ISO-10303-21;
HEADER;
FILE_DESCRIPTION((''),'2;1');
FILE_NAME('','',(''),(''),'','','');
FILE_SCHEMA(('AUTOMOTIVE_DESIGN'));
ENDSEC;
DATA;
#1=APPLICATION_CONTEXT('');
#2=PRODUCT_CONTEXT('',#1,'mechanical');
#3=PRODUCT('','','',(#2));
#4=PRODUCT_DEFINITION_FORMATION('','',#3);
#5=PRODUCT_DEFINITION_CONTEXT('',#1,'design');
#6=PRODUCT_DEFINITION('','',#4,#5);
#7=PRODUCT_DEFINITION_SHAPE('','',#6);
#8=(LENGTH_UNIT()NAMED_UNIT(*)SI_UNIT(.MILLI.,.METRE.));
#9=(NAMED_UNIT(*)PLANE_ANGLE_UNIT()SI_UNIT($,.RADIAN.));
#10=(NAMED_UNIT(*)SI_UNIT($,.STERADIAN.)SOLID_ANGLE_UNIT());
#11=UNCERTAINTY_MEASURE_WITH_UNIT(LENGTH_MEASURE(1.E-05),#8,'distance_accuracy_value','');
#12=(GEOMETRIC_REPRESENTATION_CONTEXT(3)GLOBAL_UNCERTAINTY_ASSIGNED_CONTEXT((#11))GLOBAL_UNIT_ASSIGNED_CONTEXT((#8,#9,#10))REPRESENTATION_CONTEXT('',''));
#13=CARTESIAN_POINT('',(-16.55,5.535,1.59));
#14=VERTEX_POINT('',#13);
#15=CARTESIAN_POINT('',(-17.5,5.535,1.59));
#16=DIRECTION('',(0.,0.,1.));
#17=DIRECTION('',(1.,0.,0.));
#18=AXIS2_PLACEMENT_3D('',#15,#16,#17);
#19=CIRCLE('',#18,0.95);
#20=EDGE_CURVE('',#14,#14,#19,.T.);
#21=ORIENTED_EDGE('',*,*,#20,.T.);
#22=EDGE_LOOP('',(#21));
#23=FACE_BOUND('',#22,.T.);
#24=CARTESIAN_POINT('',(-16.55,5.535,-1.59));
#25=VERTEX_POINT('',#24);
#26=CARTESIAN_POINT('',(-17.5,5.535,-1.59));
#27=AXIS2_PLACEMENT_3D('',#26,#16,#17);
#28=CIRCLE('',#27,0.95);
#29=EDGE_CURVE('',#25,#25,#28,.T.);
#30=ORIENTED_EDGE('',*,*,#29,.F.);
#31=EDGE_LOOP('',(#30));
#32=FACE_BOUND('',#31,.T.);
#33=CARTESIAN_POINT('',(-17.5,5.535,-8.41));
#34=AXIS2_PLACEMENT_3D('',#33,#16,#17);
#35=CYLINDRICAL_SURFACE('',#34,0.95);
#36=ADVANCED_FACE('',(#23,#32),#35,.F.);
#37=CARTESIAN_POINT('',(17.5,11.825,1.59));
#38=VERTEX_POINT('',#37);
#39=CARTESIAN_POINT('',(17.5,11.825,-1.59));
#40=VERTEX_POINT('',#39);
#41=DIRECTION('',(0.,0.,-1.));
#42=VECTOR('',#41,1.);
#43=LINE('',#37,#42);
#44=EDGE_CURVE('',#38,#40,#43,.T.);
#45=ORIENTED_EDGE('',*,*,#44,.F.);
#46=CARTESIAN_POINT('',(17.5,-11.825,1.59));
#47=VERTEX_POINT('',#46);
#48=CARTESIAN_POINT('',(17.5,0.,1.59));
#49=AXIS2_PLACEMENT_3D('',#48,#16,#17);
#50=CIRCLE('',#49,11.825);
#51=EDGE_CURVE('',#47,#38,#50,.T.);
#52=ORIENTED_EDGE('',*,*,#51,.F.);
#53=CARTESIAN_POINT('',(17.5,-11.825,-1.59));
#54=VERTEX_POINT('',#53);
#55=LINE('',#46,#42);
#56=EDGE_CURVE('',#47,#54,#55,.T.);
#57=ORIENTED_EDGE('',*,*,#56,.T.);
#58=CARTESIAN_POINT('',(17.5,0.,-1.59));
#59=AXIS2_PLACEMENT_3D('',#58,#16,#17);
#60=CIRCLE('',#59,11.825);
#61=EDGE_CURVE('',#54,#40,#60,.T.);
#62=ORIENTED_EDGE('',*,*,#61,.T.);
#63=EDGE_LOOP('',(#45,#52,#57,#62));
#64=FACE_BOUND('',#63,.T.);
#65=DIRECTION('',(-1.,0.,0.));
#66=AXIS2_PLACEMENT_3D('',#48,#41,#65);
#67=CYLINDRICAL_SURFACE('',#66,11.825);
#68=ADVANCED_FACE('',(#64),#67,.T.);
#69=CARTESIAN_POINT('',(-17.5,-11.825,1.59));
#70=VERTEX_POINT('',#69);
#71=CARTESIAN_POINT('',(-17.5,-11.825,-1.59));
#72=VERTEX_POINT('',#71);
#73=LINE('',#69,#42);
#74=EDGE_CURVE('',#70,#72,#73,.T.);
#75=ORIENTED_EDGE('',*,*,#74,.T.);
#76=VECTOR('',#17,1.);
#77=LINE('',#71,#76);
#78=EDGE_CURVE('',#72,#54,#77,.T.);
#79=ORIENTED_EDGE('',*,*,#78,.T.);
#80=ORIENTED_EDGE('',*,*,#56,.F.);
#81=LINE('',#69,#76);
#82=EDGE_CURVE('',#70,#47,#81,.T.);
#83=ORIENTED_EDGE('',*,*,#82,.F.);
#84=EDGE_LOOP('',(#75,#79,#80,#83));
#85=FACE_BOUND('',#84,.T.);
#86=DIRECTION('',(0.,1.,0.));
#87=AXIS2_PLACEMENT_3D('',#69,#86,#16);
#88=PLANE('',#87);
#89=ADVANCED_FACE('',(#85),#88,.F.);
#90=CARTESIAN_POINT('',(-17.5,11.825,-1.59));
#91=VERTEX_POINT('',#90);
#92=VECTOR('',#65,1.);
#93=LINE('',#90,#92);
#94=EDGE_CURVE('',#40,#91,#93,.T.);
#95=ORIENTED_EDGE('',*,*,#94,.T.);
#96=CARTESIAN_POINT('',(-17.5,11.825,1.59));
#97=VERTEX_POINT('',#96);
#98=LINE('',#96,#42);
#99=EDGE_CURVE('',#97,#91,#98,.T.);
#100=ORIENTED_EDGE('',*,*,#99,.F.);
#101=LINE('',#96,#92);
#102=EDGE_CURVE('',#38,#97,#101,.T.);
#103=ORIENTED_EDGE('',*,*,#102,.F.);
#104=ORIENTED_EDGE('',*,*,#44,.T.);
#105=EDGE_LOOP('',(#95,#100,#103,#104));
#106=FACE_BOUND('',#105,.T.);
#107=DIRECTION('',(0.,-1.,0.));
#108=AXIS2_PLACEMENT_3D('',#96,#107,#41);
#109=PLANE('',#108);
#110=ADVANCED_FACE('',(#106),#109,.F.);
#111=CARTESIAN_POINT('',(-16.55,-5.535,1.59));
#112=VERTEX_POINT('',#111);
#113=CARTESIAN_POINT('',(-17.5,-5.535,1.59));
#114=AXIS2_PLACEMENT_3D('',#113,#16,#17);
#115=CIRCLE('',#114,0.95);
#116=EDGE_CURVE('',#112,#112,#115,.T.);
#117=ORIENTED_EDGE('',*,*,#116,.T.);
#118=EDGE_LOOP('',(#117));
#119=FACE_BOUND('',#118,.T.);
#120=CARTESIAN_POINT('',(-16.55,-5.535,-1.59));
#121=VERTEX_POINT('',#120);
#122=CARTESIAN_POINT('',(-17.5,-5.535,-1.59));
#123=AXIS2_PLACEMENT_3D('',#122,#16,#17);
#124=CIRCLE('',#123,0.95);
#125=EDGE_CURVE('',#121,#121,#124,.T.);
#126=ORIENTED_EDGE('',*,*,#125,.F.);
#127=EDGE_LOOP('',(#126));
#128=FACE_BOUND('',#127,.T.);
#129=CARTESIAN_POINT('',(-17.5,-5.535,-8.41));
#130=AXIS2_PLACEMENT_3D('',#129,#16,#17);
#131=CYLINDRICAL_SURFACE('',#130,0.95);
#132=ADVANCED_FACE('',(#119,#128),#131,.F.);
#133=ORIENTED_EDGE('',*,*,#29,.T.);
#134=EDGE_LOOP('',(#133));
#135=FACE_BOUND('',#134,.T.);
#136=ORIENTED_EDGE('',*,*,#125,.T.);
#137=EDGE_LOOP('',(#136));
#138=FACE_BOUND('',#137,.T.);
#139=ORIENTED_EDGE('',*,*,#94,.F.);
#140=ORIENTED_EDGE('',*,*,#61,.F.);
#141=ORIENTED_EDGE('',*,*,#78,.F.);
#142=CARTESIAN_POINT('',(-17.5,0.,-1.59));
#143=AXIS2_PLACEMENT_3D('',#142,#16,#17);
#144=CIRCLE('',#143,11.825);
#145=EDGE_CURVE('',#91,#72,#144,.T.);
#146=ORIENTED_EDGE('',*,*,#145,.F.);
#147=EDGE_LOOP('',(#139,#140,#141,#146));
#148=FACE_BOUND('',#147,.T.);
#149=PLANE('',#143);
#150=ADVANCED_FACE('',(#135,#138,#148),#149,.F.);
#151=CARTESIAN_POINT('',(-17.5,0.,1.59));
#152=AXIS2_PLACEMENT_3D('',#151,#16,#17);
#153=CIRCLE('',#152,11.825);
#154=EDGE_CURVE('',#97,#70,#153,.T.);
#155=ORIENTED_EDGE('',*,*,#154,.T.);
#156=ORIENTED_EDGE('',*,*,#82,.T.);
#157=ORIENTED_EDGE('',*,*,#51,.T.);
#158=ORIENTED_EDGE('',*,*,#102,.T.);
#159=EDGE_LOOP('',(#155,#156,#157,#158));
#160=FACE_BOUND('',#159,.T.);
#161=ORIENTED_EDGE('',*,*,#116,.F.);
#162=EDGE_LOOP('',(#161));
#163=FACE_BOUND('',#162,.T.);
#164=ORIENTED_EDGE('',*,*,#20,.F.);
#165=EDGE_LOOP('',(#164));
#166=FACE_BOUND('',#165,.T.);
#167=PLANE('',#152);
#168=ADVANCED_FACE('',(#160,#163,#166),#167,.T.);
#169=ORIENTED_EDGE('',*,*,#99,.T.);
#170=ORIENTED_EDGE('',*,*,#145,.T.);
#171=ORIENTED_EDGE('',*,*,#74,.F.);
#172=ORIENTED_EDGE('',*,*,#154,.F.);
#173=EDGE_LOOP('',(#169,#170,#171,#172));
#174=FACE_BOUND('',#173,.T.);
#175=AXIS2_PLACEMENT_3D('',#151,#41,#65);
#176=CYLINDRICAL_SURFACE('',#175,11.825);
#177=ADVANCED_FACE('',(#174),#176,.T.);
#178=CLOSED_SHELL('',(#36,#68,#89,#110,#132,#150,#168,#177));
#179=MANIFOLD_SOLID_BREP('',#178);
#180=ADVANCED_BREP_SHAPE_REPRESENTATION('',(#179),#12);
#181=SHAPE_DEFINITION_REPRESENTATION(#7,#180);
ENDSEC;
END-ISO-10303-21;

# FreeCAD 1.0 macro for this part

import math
import FreeCAD as App
import Part
import Sketcher

doc = App.newDocument("Part")
body = doc.addObject("PartDesign::Body", "Body")

# Sketch on XY plane
sketch1 = body.newObject("Sketcher::SketchObject", "Sketch")
sketch1.AttachmentSupport = (doc.getObject("XY_Plane"), [""])
sketch1.MapMode = "FlatFace"
sketch1.addGeometry([
    Part.LineSegment(App.Vector(18, 12, 0), App.Vector(-18, 12, 0)),
    Part.ArcOfCircle(Part.Circle(App.Vector(-18, 0, 0), App.Vector(0, 0, 1), 12), math.radians(90), math.radians(270)),
    Part.LineSegment(App.Vector(-18, -12, 0), App.Vector(18, -12, 0)),
    Part.ArcOfCircle(Part.Circle(App.Vector(18, 0, 0), App.Vector(0, 0, 1), 12), math.radians(-90), math.radians(90)),
], False)
sketch1.addConstraint([
    Sketcher.Constraint("Tangent", 0, 2, 1, 1),
    Sketcher.Constraint("Tangent", 1, 2, 2, 1),
    Sketcher.Constraint("Tangent", 2, 2, 3, 1),
    Sketcher.Constraint("Tangent", 3, 2, 0, 1),
    Sketcher.Constraint("Horizontal", 0),
    Sketcher.Constraint("Horizontal", 2),
    Sketcher.Constraint("Symmetric", 1, 3, 3, 3, -1, 1),
    Sketcher.Constraint("DistanceX", 0, 2, 0, 1, 35.0),
    Sketcher.Constraint("Radius", 1, 11.825),
])
pad1 = body.newObject("PartDesign::Pad", "Pad")
pad1.Profile = sketch1
pad1.Length = 3.18
pad1.Midplane = True

# Sketch on XY plane
sketch2 = body.newObject("Sketcher::SketchObject", "Sketch001")
sketch2.AttachmentSupport = (doc.getObject("XY_Plane"), [""])
sketch2.MapMode = "FlatFace"
sketch2.AttachmentOffset = App.Placement(App.Vector(0, 0, 1.59), App.Rotation())
sketch2.addGeometry([
    Part.Circle(App.Vector(-17.5, 5.5, 0), App.Vector(0, 0, 1), 0.9),
    Part.Circle(App.Vector(-17.5, -5.5, 0), App.Vector(0, 0, 1), 0.9),
], False)
sketch2.addConstraint([
    Sketcher.Constraint("Equal", 0, 1),
    Sketcher.Constraint("Symmetric", 0, 3, 1, 3, -1),
    Sketcher.Constraint("Diameter", 0, 1.9),
    Sketcher.Constraint("DistanceX", 0, 3, -1, 1, 17.5),
    Sketcher.Constraint("DistanceY", 1, 3, 0, 3, 11.07),
])
pocket1 = body.newObject("PartDesign::Pocket", "Pocket")
pocket1.Profile = sketch2
pocket1.Length = 10

doc.recompute()
